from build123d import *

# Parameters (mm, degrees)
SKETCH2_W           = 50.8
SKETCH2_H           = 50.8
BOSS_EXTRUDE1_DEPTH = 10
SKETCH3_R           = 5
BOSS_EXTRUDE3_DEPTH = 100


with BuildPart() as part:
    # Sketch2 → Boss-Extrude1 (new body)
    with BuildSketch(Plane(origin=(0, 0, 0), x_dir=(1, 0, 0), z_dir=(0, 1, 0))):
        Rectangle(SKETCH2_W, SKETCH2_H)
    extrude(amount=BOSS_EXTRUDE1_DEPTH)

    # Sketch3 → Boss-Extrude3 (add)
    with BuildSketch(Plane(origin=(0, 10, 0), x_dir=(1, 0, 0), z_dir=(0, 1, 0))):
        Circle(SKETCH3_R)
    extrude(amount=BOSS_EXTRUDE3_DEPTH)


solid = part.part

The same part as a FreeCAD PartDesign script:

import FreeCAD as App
import Part
import Sketcher
from FreeCAD import Vector

doc = App.newDocument("Part")
body = doc.addObject("PartDesign::Body", "Body")

# Sketch on XZ plane
sketch1 = body.newObject("Sketcher::SketchObject", "Sketch")
sketch1.AttachmentSupport = (doc.getObject("XZ_Plane"), [""])
sketch1.MapMode = "FlatFace"
sketch1.addGeometry([
    Part.LineSegment(Vector(-25, -25, 0), Vector(-25, 25, 0)),
    Part.LineSegment(Vector(-25, 25, 0), Vector(25, 25, 0)),
    Part.LineSegment(Vector(25, 25, 0), Vector(25, -25, 0)),
    Part.LineSegment(Vector(25, -25, 0), Vector(-25, -25, 0)),
], False)
sketch1.addConstraint([
    Sketcher.Constraint("Coincident", 0, 2, 1, 1),
    Sketcher.Constraint("Coincident", 1, 2, 2, 1),
    Sketcher.Constraint("Coincident", 2, 2, 3, 1),
    Sketcher.Constraint("Coincident", 3, 2, 0, 1),
    Sketcher.Constraint("Vertical", 0),
    Sketcher.Constraint("Horizontal", 1),
    Sketcher.Constraint("Vertical", 2),
    Sketcher.Constraint("Horizontal", 3),
    Sketcher.Constraint("Symmetric", 0, 2, 2, 2, -1, 1),
    Sketcher.Constraint("Equal", 3, 0),
    Sketcher.Constraint("DistanceX", 1, 1, 1, 2, 50.8),
])
pad1 = body.newObject("PartDesign::Pad", "Pad")
pad1.Profile = sketch1
pad1.Length = 10
pad1.Reversed = True

# Sketch on XZ plane
sketch2 = body.newObject("Sketcher::SketchObject", "Sketch001")
sketch2.AttachmentSupport = (doc.getObject("XZ_Plane"), [""])
sketch2.MapMode = "FlatFace"
sketch2.AttachmentOffset = App.Placement(Vector(0, 0, -10), App.Rotation())
sketch2.addGeometry(Part.Circle(Vector(0, 0, 0), Vector(0, 0, 1), 5), False)
sketch2.addConstraint([
    Sketcher.Constraint("Coincident", 0, 3, -1, 1),
    Sketcher.Constraint("Diameter", 0, 10.0),
])
pad2 = body.newObject("PartDesign::Pad", "Pad001")
pad2.Profile = sketch2
pad2.Length = 100
pad2.Reversed = True

doc.recompute()
